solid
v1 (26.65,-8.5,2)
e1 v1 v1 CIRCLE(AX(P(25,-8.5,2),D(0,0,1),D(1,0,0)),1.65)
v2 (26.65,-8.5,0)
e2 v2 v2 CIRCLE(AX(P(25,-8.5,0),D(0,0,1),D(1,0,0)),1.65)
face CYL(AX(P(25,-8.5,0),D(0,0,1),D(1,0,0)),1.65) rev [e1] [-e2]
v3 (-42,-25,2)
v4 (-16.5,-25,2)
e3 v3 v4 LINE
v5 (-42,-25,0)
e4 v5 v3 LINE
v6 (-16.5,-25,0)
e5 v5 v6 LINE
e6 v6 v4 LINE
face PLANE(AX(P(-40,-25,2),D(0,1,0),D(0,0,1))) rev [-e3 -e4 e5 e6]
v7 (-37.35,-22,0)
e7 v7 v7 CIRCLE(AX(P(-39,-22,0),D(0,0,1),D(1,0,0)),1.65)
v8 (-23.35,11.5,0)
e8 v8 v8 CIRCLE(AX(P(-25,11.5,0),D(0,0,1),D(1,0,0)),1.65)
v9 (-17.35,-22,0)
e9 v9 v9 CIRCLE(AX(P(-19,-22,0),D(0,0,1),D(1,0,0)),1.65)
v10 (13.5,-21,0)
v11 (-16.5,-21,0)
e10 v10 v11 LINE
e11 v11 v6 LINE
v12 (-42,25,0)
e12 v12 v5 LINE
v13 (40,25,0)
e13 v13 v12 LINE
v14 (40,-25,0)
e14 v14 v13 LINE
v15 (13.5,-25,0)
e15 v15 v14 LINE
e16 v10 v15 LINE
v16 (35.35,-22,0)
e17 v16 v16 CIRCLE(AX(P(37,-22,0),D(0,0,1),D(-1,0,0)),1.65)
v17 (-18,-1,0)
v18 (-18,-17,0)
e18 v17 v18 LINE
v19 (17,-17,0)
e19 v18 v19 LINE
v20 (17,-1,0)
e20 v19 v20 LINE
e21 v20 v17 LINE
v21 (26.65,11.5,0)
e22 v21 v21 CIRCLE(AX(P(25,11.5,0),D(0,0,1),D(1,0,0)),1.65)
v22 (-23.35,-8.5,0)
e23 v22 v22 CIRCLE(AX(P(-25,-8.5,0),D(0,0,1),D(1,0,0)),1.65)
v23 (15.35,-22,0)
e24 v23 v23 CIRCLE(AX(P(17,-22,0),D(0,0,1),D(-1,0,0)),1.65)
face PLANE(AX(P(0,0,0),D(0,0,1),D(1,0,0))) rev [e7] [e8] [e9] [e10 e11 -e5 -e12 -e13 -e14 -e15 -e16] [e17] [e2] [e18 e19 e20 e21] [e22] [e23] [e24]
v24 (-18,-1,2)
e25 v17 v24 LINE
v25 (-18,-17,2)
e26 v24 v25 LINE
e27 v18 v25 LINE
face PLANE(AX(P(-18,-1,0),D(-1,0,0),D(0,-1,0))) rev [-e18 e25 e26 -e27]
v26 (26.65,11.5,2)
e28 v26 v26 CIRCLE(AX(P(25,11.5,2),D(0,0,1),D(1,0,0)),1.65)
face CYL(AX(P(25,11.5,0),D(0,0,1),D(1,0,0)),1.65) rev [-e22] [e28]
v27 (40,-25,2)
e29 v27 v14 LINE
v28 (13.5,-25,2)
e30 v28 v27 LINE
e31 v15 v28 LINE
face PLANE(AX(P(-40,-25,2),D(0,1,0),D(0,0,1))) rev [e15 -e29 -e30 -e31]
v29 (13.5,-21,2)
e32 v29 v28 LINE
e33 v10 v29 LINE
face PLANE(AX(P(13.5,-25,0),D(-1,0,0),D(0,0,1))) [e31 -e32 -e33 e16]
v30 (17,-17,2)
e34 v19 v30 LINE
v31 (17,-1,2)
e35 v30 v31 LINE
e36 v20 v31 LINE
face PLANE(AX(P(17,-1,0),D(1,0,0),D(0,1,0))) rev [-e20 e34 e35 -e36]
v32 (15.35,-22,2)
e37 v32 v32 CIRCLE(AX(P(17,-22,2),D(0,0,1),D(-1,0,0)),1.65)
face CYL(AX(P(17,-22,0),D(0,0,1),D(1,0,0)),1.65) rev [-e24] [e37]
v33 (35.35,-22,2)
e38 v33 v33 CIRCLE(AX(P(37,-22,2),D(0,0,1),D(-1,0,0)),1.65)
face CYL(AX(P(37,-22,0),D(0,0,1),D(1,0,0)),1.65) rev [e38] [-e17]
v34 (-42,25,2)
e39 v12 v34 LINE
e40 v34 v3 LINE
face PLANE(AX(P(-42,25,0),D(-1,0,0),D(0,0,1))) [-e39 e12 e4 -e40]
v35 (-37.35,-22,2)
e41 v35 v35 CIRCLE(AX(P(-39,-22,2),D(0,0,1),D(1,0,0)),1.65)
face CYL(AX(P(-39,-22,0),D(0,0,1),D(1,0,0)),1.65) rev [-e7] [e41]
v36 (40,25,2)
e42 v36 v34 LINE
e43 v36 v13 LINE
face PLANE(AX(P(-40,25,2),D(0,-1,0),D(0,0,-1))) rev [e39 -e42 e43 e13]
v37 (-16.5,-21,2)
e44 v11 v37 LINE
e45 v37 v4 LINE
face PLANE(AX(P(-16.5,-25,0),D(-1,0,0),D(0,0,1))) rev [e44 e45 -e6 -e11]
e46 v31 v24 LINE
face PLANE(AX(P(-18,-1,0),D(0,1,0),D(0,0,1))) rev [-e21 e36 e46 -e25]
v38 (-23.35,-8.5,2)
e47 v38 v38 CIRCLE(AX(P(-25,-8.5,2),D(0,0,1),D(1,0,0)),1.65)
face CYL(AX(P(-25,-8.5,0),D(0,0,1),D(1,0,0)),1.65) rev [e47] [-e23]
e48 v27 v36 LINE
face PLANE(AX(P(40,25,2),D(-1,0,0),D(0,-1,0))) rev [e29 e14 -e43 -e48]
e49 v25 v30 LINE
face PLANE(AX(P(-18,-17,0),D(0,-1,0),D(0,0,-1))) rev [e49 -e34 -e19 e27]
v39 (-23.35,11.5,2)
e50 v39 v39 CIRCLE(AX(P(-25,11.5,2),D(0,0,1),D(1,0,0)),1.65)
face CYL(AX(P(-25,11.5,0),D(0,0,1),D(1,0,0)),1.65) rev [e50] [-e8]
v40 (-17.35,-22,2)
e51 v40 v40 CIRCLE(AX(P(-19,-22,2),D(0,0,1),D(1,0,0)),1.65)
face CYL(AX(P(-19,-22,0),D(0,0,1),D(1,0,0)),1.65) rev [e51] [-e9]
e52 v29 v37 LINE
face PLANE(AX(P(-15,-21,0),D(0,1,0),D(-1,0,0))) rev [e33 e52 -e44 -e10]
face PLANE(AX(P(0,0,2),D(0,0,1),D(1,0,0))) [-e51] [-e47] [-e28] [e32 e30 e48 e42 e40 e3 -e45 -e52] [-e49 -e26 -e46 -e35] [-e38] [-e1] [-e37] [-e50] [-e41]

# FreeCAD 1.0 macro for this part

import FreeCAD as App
import Part
import Sketcher

doc = App.newDocument("Part")
params = doc.addObject("Spreadsheet::Sheet", "Params")
for row, (alias, value) in enumerate([
    ("sketch1_width", "80 mm"),
    ("sketch1_height", "50 mm"),
    ("pad1_length", "2 mm"),
    ("sketch2_width", "2 mm"),
    ("sketch2_height", "50 mm"),
    ("pad2_length", "2 mm"),
    ("sketch3_width", "30 mm"),
    ("sketch3_width2", "35 mm"),
    ("sketch3_height", "4 mm"),
    ("sketch3_height2", "16 mm"),
    ("sketch4_diameter", "3.3 mm"),
    ("sketch5_height", "4 mm"),
    ("sketch5_width", "1.5 mm"),
    ("sketch6_height", "4 mm"),
    ("sketch6_width", "1.5 mm"),
    ("pad3_length", "2 mm"),
    ("sketch7_diameter", "3.3 mm"),
], start=1):
    params.set(f"A{row}", alias)
    params.set(f"B{row}", "=" + value)
    params.setAlias(f"B{row}", alias)

body = doc.addObject("PartDesign::Body", "Body")

# Sketch on XY plane
sketch1 = body.newObject("Sketcher::SketchObject", "Sketch")
sketch1.AttachmentSupport = (doc.getObject("XY_Plane"), [""])
sketch1.MapMode = "FlatFace"
sketch1.addGeometry(Part.LineSegment(App.Vector(-40, 25, 0), App.Vector(-40, -25, 0)), False)
sketch1.addGeometry(Part.LineSegment(App.Vector(-40, -25, 0), App.Vector(40, -25, 0)), False)
sketch1.addGeometry(Part.LineSegment(App.Vector(40, -25, 0), App.Vector(40, 25, 0)), False)
sketch1.addGeometry(Part.LineSegment(App.Vector(40, 25, 0), App.Vector(-40, 25, 0)), False)
sketch1.addConstraint(Sketcher.Constraint("Coincident", 0, 2, 1, 1))
sketch1.addConstraint(Sketcher.Constraint("Coincident", 1, 2, 2, 1))
sketch1.addConstraint(Sketcher.Constraint("Coincident", 2, 2, 3, 1))
sketch1.addConstraint(Sketcher.Constraint("Coincident", 3, 2, 0, 1))
sketch1.addConstraint(Sketcher.Constraint("Vertical", 0))
sketch1.addConstraint(Sketcher.Constraint("Horizontal", 1))
sketch1.addConstraint(Sketcher.Constraint("Vertical", 2))
sketch1.addConstraint(Sketcher.Constraint("Horizontal", 3))
sketch1.addConstraint(Sketcher.Constraint("Symmetric", 0, 2, 2, 2, -1, 1))
sketch1.addConstraint(Sketcher.Constraint("DistanceX", 1, 1, 1, 2, 80.0))
sketch1.addConstraint(Sketcher.Constraint("DistanceY", 0, 2, 0, 1, 50.0))
sketch1.setExpression("Constraints[9]", "Params.sketch1_width")
sketch1.setExpression("Constraints[10]", "Params.sketch1_height")
pad1 = body.newObject("PartDesign::Pad", "Pad")
pad1.Profile = sketch1
pad1.setExpression("Length", "Params.pad1_length")

# Sketch on XY plane
sketch2 = body.newObject("Sketcher::SketchObject", "Sketch001")
sketch2.AttachmentSupport = (doc.getObject("XY_Plane"), [""])
sketch2.MapMode = "FlatFace"
sketch2.AttachmentOffset = App.Placement(App.Vector(0, 0, 2), App.Rotation())
sketch2.addGeometry(Part.LineSegment(App.Vector(-42, 25, 0), App.Vector(-42, -25, 0)), False)
sketch2.addGeometry(Part.LineSegment(App.Vector(-42, -25, 0), App.Vector(-40, -25, 0)), False)
sketch2.addGeometry(Part.LineSegment(App.Vector(-40, -25, 0), App.Vector(-40, 25, 0)), False)
sketch2.addGeometry(Part.LineSegment(App.Vector(-40, 25, 0), App.Vector(-42, 25, 0)), False)
sketch2.addConstraint(Sketcher.Constraint("Coincident", 0, 2, 1, 1))
sketch2.addConstraint(Sketcher.Constraint("Coincident", 1, 2, 2, 1))
sketch2.addConstraint(Sketcher.Constraint("Coincident", 2, 2, 3, 1))
sketch2.addConstraint(Sketcher.Constraint("Coincident", 3, 2, 0, 1))
sketch2.addConstraint(Sketcher.Constraint("Vertical", 0))
sketch2.addConstraint(Sketcher.Constraint("Horizontal", 1))
sketch2.addConstraint(Sketcher.Constraint("Vertical", 2))
sketch2.addConstraint(Sketcher.Constraint("Horizontal", 3))
sketch2.addConstraint(Sketcher.Constraint("DistanceX", 1, 1, 1, 2, 2.0))
sketch2.addConstraint(Sketcher.Constraint("DistanceY", 0, 2, 0, 1, 50.0))
sketch2.addConstraint(Sketcher.Constraint("DistanceX", 0, 2, -1, 1, 42.0))
sketch2.addConstraint(Sketcher.Constraint("DistanceY", 0, 2, -1, 1, 25.0))
sketch2.setExpression("Constraints[8]", "Params.sketch2_width")
sketch2.setExpression("Constraints[9]", "Params.sketch2_height")
pad2 = body.newObject("PartDesign::Pad", "Pad001")
pad2.Profile = sketch2
pad2.setExpression("Length", "Params.pad2_length")
pad2.Reversed = True

# Sketch on XY plane
sketch3 = body.newObject("Sketcher::SketchObject", "Sketch002")
sketch3.AttachmentSupport = (doc.getObject("XY_Plane"), [""])
sketch3.MapMode = "FlatFace"
sketch3.AttachmentOffset = App.Placement(App.Vector(0, 0, 2), App.Rotation())
sketch3.addGeometry(Part.LineSegment(App.Vector(-15, -21, 0), App.Vector(-15, -25, 0)), False)
sketch3.addGeometry(Part.LineSegment(App.Vector(-15, -25, 0), App.Vector(15, -25, 0)), False)
sketch3.addGeometry(Part.LineSegment(App.Vector(15, -25, 0), App.Vector(15, -21, 0)), False)
sketch3.addGeometry(Part.LineSegment(App.Vector(15, -21, 0), App.Vector(-15, -21, 0)), False)
sketch3.addGeometry(Part.LineSegment(App.Vector(-18, -1, 0), App.Vector(-18, -17, 0)), False)
sketch3.addGeometry(Part.LineSegment(App.Vector(-18, -17, 0), App.Vector(17, -17, 0)), False)
sketch3.addGeometry(Part.LineSegment(App.Vector(17, -17, 0), App.Vector(17, -1, 0)), False)
sketch3.addGeometry(Part.LineSegment(App.Vector(17, -1, 0), App.Vector(-18, -1, 0)), False)
sketch3.addConstraint(Sketcher.Constraint("Coincident", 0, 2, 1, 1))
sketch3.addConstraint(Sketcher.Constraint("Coincident", 1, 2, 2, 1))
sketch3.addConstraint(Sketcher.Constraint("Coincident", 2, 2, 3, 1))
sketch3.addConstraint(Sketcher.Constraint("Coincident", 3, 2, 0, 1))
sketch3.addConstraint(Sketcher.Constraint("Coincident", 4, 2, 5, 1))
sketch3.addConstraint(Sketcher.Constraint("Coincident", 5, 2, 6, 1))
sketch3.addConstraint(Sketcher.Constraint("Coincident", 6, 2, 7, 1))
sketch3.addConstraint(Sketcher.Constraint("Coincident", 7, 2, 4, 1))
sketch3.addConstraint(Sketcher.Constraint("Vertical", 0))
sketch3.addConstraint(Sketcher.Constraint("Horizontal", 1))
sketch3.addConstraint(Sketcher.Constraint("Vertical", 2))
sketch3.addConstraint(Sketcher.Constraint("Horizontal", 3))
sketch3.addConstraint(Sketcher.Constraint("Vertical", 4))
sketch3.addConstraint(Sketcher.Constraint("Horizontal", 5))
sketch3.addConstraint(Sketcher.Constraint("Vertical", 6))
sketch3.addConstraint(Sketcher.Constraint("Horizontal", 7))
sketch3.addConstraint(Sketcher.Constraint("DistanceX", 1, 1, 1, 2, 30.0))
sketch3.addConstraint(Sketcher.Constraint("DistanceX", 5, 1, 5, 2, 35.0))
sketch3.addConstraint(Sketcher.Constraint("DistanceY", 0, 2, 0, 1, 4.0))
sketch3.addConstraint(Sketcher.Constraint("DistanceY", 4, 2, 4, 1, 16.0))
sketch3.addConstraint(Sketcher.Constraint("DistanceX", 0, 2, -1, 1, 15.0))
sketch3.addConstraint(Sketcher.Constraint("DistanceY", 0, 2, -1, 1, 25.0))
sketch3.addConstraint(Sketcher.Constraint("DistanceX", 4, 2, -1, 1, 18.0))
sketch3.addConstraint(Sketcher.Constraint("DistanceY", 4, 2, -1, 1, 17.0))
sketch3.setExpression("Constraints[16]", "Params.sketch3_width")
sketch3.setExpression("Constraints[17]", "Params.sketch3_width2")
sketch3.setExpression("Constraints[18]", "Params.sketch3_height")
sketch3.setExpression("Constraints[19]", "Params.sketch3_height2")
pocket1 = body.newObject("PartDesign::Pocket", "Pocket")
pocket1.Profile = sketch3
pocket1.Type = "ThroughAll"

# Sketch on XY plane
sketch4 = body.newObject("Sketcher::SketchObject", "Sketch003")
sketch4.AttachmentSupport = (doc.getObject("XY_Plane"), [""])
sketch4.MapMode = "FlatFace"
sketch4.AttachmentOffset = App.Placement(App.Vector(0, 0, 2), App.Rotation())
sketch4.addGeometry(Part.Circle(App.Vector(-39, -22, 0), App.Vector(0, 0, 1), 1.6), False)
sketch4.addGeometry(Part.Circle(App.Vector(-19, -22, 0), App.Vector(0, 0, 1), 1.6), False)
sketch4.addGeometry(Part.Circle(App.Vector(17, -22, 0), App.Vector(0, 0, 1), 1.6), False)
sketch4.addGeometry(Part.Circle(App.Vector(37, -22, 0), App.Vector(0, 0, 1), 1.6), False)
sketch4.addConstraint(Sketcher.Constraint("Equal", 0, 1))
sketch4.addConstraint(Sketcher.Constraint("Equal", 1, 2))
sketch4.addConstraint(Sketcher.Constraint("Equal", 2, 3))
sketch4.addConstraint(Sketcher.Constraint("Horizontal", 0, 3, 1, 3))
sketch4.addConstraint(Sketcher.Constraint("Horizontal", 1, 3, 2, 3))
sketch4.addConstraint(Sketcher.Constraint("Horizontal", 2, 3, 3, 3))
sketch4.addConstraint(Sketcher.Constraint("Diameter", 0, 3.3))
sketch4.addConstraint(Sketcher.Constraint("DistanceX", 0, 3, -1, 1, 39.0))
sketch4.addConstraint(Sketcher.Constraint("DistanceY", 0, 3, -1, 1, 22.0))
sketch4.addConstraint(Sketcher.Constraint("DistanceX", 1, 3, -1, 1, 19.0))
sketch4.addConstraint(Sketcher.Constraint("DistanceX", -1, 1, 2, 3, 17.0))
sketch4.addConstraint(Sketcher.Constraint("DistanceX", -1, 1, 3, 3, 37.0))
sketch4.setExpression("Constraints[6]", "Params.sketch4_diameter")
pocket2 = body.newObject("PartDesign::Pocket", "Pocket001")
pocket2.Profile = sketch4
pocket2.Type = "ThroughAll"

# Sketch on XY plane
sketch5 = body.newObject("Sketcher::SketchObject", "Sketch004")
sketch5.AttachmentSupport = (doc.getObject("XY_Plane"), [""])
sketch5.MapMode = "FlatFace"
sketch5.AttachmentOffset = App.Placement(App.Vector(0, 0, 2), App.Rotation())
sketch5.addGeometry(Part.LineSegment(App.Vector(-16.5, -21, 0), App.Vector(-16.5, -25, 0)), False)
sketch5.addGeometry(Part.LineSegment(App.Vector(-16.5, -25, 0), App.Vector(-15, -25, 0)), False)
sketch5.addGeometry(Part.LineSegment(App.Vector(-15, -25, 0), App.Vector(-15, -21, 0)), False)
sketch5.addGeometry(Part.LineSegment(App.Vector(-15, -21, 0), App.Vector(-16.5, -21, 0)), False)
sketch5.addConstraint(Sketcher.Constraint("Coincident", 0, 2, 1, 1))
sketch5.addConstraint(Sketcher.Constraint("Coincident", 1, 2, 2, 1))
sketch5.addConstraint(Sketcher.Constraint("Coincident", 2, 2, 3, 1))
sketch5.addConstraint(Sketcher.Constraint("Coincident", 3, 2, 0, 1))
sketch5.addConstraint(Sketcher.Constraint("Vertical", 0))
sketch5.addConstraint(Sketcher.Constraint("Horizontal", 1))
sketch5.addConstraint(Sketcher.Constraint("Vertical", 2))
sketch5.addConstraint(Sketcher.Constraint("Horizontal", 3))
sketch5.addConstraint(Sketcher.Constraint("DistanceY", 0, 2, 0, 1, 4.0))
sketch5.addConstraint(Sketcher.Constraint("DistanceX", 1, 1, 1, 2, 1.5))
sketch5.addConstraint(Sketcher.Constraint("DistanceY", 0, 2, -1, 1, 25.0))
sketch5.addConstraint(Sketcher.Constraint("DistanceX", 1, 2, -1, 1, 15.0))
sketch5.setExpression("Constraints[8]", "Params.sketch5_height")
sketch5.setExpression("Constraints[9]", "Params.sketch5_width")
pocket3 = body.newObject("PartDesign::Pocket", "Pocket002")
pocket3.Profile = sketch5
pocket3.Type = "ThroughAll"

# Sketch on XY plane
sketch6 = body.newObject("Sketcher::SketchObject", "Sketch005")
sketch6.AttachmentSupport = (doc.getObject("XY_Plane"), [""])
sketch6.MapMode = "FlatFace"
sketch6.AttachmentOffset = App.Placement(App.Vector(0, 0, 2), App.Rotation())
sketch6.addGeometry(Part.LineSegment(App.Vector(13.5, -21, 0), App.Vector(13.5, -25, 0)), False)
sketch6.addGeometry(Part.LineSegment(App.Vector(13.5, -25, 0), App.Vector(15, -25, 0)), False)
sketch6.addGeometry(Part.LineSegment(App.Vector(15, -25, 0), App.Vector(15, -21, 0)), False)
sketch6.addGeometry(Part.LineSegment(App.Vector(15, -21, 0), App.Vector(13.5, -21, 0)), False)
sketch6.addConstraint(Sketcher.Constraint("Coincident", 0, 2, 1, 1))
sketch6.addConstraint(Sketcher.Constraint("Coincident", 1, 2, 2, 1))
sketch6.addConstraint(Sketcher.Constraint("Coincident", 2, 2, 3, 1))
sketch6.addConstraint(Sketcher.Constraint("Coincident", 3, 2, 0, 1))
sketch6.addConstraint(Sketcher.Constraint("Vertical", 0))
sketch6.addConstraint(Sketcher.Constraint("Horizontal", 1))
sketch6.addConstraint(Sketcher.Constraint("Vertical", 2))
sketch6.addConstraint(Sketcher.Constraint("Horizontal", 3))
sketch6.addConstraint(Sketcher.Constraint("DistanceY", 0, 2, 0, 1, 4.0))
sketch6.addConstraint(Sketcher.Constraint("DistanceX", 1, 1, 1, 2, 1.5))
sketch6.addConstraint(Sketcher.Constraint("DistanceY", 0, 2, -1, 1, 25.0))
sketch6.addConstraint(Sketcher.Constraint("DistanceX", -1, 1, 1, 2, 15.0))
sketch6.setExpression("Constraints[8]", "Params.sketch6_height")
sketch6.setExpression("Constraints[9]", "Params.sketch6_width")
pad3 = body.newObject("PartDesign::Pad", "Pad002")
pad3.Profile = sketch6
pad3.setExpression("Length", "Params.pad3_length")
pad3.Reversed = True

# Sketch on XY plane
sketch7 = body.newObject("Sketcher::SketchObject", "Sketch006")
sketch7.AttachmentSupport = (doc.getObject("XY_Plane"), [""])
sketch7.MapMode = "FlatFace"
sketch7.AttachmentOffset = App.Placement(App.Vector(0, 0, 2), App.Rotation())
sketch7.addGeometry(Part.Circle(App.Vector(-25, 11.5, 0), App.Vector(0, 0, 1), 1.6), False)
sketch7.addGeometry(Part.Circle(App.Vector(-25, -8.5, 0), App.Vector(0, 0, 1), 1.6), False)
sketch7.addGeometry(Part.Circle(App.Vector(25, -8.5, 0), App.Vector(0, 0, 1), 1.6), False)
sketch7.addGeometry(Part.Circle(App.Vector(25, 11.5, 0), App.Vector(0, 0, 1), 1.6), False)
sketch7.addConstraint(Sketcher.Constraint("Equal", 0, 1))
sketch7.addConstraint(Sketcher.Constraint("Equal", 1, 2))
sketch7.addConstraint(Sketcher.Constraint("Equal", 2, 3))
sketch7.addConstraint(Sketcher.Constraint("Symmetric", 1, 3, 2, 3, -2))
sketch7.addConstraint(Sketcher.Constraint("Symmetric", 0, 3, 3, 3, -2))
sketch7.addConstraint(Sketcher.Constraint("Vertical", 0, 3, 1, 3))
sketch7.addConstraint(Sketcher.Constraint("Diameter", 0, 3.3))
sketch7.addConstraint(Sketcher.Constraint("DistanceX", 0, 3, -1, 1, 25.0))
sketch7.addConstraint(Sketcher.Constraint("DistanceY", 1, 3, 0, 3, 20.0))
sketch7.addConstraint(Sketcher.Constraint("DistanceY", -1, 1, 0, 3, 11.5))
sketch7.setExpression("Constraints[6]", "Params.sketch7_diameter")
pocket4 = body.newObject("PartDesign::Pocket", "Pocket003")
pocket4.Profile = sketch7
pocket4.Type = "ThroughAll"

doc.recompute()
